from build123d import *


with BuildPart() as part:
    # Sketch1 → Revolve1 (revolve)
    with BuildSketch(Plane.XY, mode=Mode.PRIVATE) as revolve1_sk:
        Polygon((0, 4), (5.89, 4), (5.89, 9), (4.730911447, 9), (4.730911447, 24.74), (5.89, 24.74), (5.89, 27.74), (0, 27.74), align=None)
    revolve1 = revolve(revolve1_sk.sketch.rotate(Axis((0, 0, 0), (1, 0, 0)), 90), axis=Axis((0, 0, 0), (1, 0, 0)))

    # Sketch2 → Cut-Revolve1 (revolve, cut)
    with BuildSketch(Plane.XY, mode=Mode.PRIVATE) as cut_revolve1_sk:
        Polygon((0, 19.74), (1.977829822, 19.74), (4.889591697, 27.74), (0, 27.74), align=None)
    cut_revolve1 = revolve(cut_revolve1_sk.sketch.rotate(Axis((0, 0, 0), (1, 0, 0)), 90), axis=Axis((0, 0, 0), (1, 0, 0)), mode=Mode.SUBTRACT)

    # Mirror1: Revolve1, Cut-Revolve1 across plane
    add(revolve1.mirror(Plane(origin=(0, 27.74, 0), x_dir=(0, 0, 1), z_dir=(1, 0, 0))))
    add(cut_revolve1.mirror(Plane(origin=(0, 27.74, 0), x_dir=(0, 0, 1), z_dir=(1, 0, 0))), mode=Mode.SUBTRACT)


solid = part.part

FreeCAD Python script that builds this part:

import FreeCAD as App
import Part
import Sketcher
Q = App.Units.Quantity

doc = App.newDocument("Part")
params = doc.addObject("Spreadsheet::Sheet", "Params")
for row, (alias, value) in enumerate([
    ("sketch1_height", "5 mm"),
    ("sketch1_height2", "3 mm"),
    ("sketch1_width", "5.89 mm"),
    ("sketch1_height3", "15.74 mm"),
    ("revolution_angle", "360 deg"),
    ("sketch2_height", "8 mm"),
    ("groove_angle", "360 deg"),
], start=1):
    params.set(f"A{row}", alias)
    params.set(f"B{row}", "=" + value)
    params.setAlias(f"B{row}", alias)

body = doc.addObject("PartDesign::Body", "Body")

# Sketch on XY plane
sketch1 = body.newObject("Sketcher::SketchObject", "Sketch")
sketch1.AttachmentSupport = (doc.getObject("XY_Plane"), [""])
sketch1.MapMode = "FlatFace"
sketch1.addGeometry(Part.LineSegment(App.Vector(0, 4, 0), App.Vector(5.9, 4, 0)), False)
sketch1.addGeometry(Part.LineSegment(App.Vector(5.9, 4, 0), App.Vector(5.9, 9, 0)), False)
sketch1.addGeometry(Part.LineSegment(App.Vector(5.9, 9, 0), App.Vector(4.7, 9, 0)), False)
sketch1.addGeometry(Part.LineSegment(App.Vector(4.7, 9, 0), App.Vector(4.7, 24.7, 0)), False)
sketch1.addGeometry(Part.LineSegment(App.Vector(4.7, 24.7, 0), App.Vector(5.9, 24.7, 0)), False)
sketch1.addGeometry(Part.LineSegment(App.Vector(5.9, 24.7, 0), App.Vector(5.9, 27.7, 0)), False)
sketch1.addGeometry(Part.LineSegment(App.Vector(5.9, 27.7, 0), App.Vector(0, 27.7, 0)), False)
sketch1.addGeometry(Part.LineSegment(App.Vector(0, 27.7, 0), App.Vector(0, 4, 0)), False)
sketch1.addConstraint(Sketcher.Constraint("Coincident", 0, 2, 1, 1))
sketch1.addConstraint(Sketcher.Constraint("Coincident", 1, 2, 2, 1))
sketch1.addConstraint(Sketcher.Constraint("Coincident", 2, 2, 3, 1))
sketch1.addConstraint(Sketcher.Constraint("Coincident", 3, 2, 4, 1))
sketch1.addConstraint(Sketcher.Constraint("Coincident", 4, 2, 5, 1))
sketch1.addConstraint(Sketcher.Constraint("Coincident", 5, 2, 6, 1))
sketch1.addConstraint(Sketcher.Constraint("Coincident", 6, 2, 7, 1))
sketch1.addConstraint(Sketcher.Constraint("Coincident", 7, 2, 0, 1))
sketch1.addConstraint(Sketcher.Constraint("Horizontal", 0))
sketch1.addConstraint(Sketcher.Constraint("Vertical", 1))
sketch1.addConstraint(Sketcher.Constraint("Horizontal", 2))
sketch1.addConstraint(Sketcher.Constraint("Vertical", 3))
sketch1.addConstraint(Sketcher.Constraint("Horizontal", 4))
sketch1.addConstraint(Sketcher.Constraint("Vertical", 5))
sketch1.addConstraint(Sketcher.Constraint("Horizontal", 6))
sketch1.addConstraint(Sketcher.Constraint("Vertical", 7))
sketch1.addConstraint(Sketcher.Constraint("PointOnObject", 6, 2, -2))
sketch1.addConstraint(Sketcher.Constraint("Vertical", 1, 2, 4, 2))
sketch1.addConstraint(Sketcher.Constraint("DistanceY", 1, 1, 1, 2, 5.0))
sketch1.addConstraint(Sketcher.Constraint("DistanceY", 5, 1, 5, 2, 3.0))
sketch1.addConstraint(Sketcher.Constraint("DistanceY", -1, 1, 0, 2, 4.0))
sketch1.addConstraint(Sketcher.Constraint("DistanceX", 0, 1, 0, 2, 5.89))
sketch1.addConstraint(Sketcher.Constraint("DistanceY", 3, 1, 3, 2, 15.74))
sketch1.addConstraint(Sketcher.Constraint("DistanceX", 2, 2, 2, 1, 1.159089))
sketch1.setExpression("Constraints[18]", "Params.sketch1_height")
sketch1.setExpression("Constraints[19]", "Params.sketch1_height2")
sketch1.setExpression("Constraints[21]", "Params.sketch1_width")
sketch1.setExpression("Constraints[22]", "Params.sketch1_height3")
revolution = body.newObject("PartDesign::Revolution", "Revolution")
revolution.Profile = sketch1
revolution.ReferenceAxis = (sketch1, ["H_Axis"])
revolution.setExpression("Angle", "Params.revolution_angle")

# Sketch on XY plane
sketch2 = body.newObject("Sketcher::SketchObject", "Sketch001")
sketch2.AttachmentSupport = (doc.getObject("XY_Plane"), [""])
sketch2.MapMode = "FlatFace"
sketch2.addGeometry(Part.LineSegment(App.Vector(0, 19.7, 0), App.Vector(2, 19.7, 0)), False)
sketch2.addGeometry(Part.LineSegment(App.Vector(2, 19.7, 0), App.Vector(4.9, 27.7, 0)), False)
sketch2.addGeometry(Part.LineSegment(App.Vector(4.9, 27.7, 0), App.Vector(0, 27.7, 0)), False)
sketch2.addGeometry(Part.LineSegment(App.Vector(0, 27.7, 0), App.Vector(0, 19.7, 0)), False)
sketch2.addConstraint(Sketcher.Constraint("Coincident", 0, 2, 1, 1))
sketch2.addConstraint(Sketcher.Constraint("Coincident", 1, 2, 2, 1))
sketch2.addConstraint(Sketcher.Constraint("Coincident", 2, 2, 3, 1))
sketch2.addConstraint(Sketcher.Constraint("Coincident", 3, 2, 0, 1))
sketch2.addConstraint(Sketcher.Constraint("Horizontal", 0))
sketch2.addConstraint(Sketcher.Constraint("Horizontal", 2))
sketch2.addConstraint(Sketcher.Constraint("Vertical", 3))
sketch2.addConstraint(Sketcher.Constraint("PointOnObject", 2, 2, -2))
sketch2.addConstraint(Sketcher.Constraint("DistanceY", 3, 2, 3, 1, 8.0))
sketch2.addConstraint(Sketcher.Constraint("Angle", 1, Q("70 deg")))
sketch2.addConstraint(Sketcher.Constraint("DistanceY", -1, 1, 0, 2, 19.74))
sketch2.addConstraint(Sketcher.Constraint("DistanceX", 0, 1, 0, 2, 1.97783))
sketch2.setExpression("Constraints[8]", "Params.sketch2_height")
groove = body.newObject("PartDesign::Groove", "Groove")
groove.Profile = sketch2
groove.ReferenceAxis = (sketch2, ["H_Axis"])
groove.setExpression("Angle", "Params.groove_angle")
doc.recompute()

mirrored = body.newObject("PartDesign::Mirrored", "Mirrored")
mirrored.Originals = [revolution, groove]
mirrored.MirrorPlane = (doc.getObject("YZ_Plane"), [""])
body.Tip = mirrored

doc.recompute()
